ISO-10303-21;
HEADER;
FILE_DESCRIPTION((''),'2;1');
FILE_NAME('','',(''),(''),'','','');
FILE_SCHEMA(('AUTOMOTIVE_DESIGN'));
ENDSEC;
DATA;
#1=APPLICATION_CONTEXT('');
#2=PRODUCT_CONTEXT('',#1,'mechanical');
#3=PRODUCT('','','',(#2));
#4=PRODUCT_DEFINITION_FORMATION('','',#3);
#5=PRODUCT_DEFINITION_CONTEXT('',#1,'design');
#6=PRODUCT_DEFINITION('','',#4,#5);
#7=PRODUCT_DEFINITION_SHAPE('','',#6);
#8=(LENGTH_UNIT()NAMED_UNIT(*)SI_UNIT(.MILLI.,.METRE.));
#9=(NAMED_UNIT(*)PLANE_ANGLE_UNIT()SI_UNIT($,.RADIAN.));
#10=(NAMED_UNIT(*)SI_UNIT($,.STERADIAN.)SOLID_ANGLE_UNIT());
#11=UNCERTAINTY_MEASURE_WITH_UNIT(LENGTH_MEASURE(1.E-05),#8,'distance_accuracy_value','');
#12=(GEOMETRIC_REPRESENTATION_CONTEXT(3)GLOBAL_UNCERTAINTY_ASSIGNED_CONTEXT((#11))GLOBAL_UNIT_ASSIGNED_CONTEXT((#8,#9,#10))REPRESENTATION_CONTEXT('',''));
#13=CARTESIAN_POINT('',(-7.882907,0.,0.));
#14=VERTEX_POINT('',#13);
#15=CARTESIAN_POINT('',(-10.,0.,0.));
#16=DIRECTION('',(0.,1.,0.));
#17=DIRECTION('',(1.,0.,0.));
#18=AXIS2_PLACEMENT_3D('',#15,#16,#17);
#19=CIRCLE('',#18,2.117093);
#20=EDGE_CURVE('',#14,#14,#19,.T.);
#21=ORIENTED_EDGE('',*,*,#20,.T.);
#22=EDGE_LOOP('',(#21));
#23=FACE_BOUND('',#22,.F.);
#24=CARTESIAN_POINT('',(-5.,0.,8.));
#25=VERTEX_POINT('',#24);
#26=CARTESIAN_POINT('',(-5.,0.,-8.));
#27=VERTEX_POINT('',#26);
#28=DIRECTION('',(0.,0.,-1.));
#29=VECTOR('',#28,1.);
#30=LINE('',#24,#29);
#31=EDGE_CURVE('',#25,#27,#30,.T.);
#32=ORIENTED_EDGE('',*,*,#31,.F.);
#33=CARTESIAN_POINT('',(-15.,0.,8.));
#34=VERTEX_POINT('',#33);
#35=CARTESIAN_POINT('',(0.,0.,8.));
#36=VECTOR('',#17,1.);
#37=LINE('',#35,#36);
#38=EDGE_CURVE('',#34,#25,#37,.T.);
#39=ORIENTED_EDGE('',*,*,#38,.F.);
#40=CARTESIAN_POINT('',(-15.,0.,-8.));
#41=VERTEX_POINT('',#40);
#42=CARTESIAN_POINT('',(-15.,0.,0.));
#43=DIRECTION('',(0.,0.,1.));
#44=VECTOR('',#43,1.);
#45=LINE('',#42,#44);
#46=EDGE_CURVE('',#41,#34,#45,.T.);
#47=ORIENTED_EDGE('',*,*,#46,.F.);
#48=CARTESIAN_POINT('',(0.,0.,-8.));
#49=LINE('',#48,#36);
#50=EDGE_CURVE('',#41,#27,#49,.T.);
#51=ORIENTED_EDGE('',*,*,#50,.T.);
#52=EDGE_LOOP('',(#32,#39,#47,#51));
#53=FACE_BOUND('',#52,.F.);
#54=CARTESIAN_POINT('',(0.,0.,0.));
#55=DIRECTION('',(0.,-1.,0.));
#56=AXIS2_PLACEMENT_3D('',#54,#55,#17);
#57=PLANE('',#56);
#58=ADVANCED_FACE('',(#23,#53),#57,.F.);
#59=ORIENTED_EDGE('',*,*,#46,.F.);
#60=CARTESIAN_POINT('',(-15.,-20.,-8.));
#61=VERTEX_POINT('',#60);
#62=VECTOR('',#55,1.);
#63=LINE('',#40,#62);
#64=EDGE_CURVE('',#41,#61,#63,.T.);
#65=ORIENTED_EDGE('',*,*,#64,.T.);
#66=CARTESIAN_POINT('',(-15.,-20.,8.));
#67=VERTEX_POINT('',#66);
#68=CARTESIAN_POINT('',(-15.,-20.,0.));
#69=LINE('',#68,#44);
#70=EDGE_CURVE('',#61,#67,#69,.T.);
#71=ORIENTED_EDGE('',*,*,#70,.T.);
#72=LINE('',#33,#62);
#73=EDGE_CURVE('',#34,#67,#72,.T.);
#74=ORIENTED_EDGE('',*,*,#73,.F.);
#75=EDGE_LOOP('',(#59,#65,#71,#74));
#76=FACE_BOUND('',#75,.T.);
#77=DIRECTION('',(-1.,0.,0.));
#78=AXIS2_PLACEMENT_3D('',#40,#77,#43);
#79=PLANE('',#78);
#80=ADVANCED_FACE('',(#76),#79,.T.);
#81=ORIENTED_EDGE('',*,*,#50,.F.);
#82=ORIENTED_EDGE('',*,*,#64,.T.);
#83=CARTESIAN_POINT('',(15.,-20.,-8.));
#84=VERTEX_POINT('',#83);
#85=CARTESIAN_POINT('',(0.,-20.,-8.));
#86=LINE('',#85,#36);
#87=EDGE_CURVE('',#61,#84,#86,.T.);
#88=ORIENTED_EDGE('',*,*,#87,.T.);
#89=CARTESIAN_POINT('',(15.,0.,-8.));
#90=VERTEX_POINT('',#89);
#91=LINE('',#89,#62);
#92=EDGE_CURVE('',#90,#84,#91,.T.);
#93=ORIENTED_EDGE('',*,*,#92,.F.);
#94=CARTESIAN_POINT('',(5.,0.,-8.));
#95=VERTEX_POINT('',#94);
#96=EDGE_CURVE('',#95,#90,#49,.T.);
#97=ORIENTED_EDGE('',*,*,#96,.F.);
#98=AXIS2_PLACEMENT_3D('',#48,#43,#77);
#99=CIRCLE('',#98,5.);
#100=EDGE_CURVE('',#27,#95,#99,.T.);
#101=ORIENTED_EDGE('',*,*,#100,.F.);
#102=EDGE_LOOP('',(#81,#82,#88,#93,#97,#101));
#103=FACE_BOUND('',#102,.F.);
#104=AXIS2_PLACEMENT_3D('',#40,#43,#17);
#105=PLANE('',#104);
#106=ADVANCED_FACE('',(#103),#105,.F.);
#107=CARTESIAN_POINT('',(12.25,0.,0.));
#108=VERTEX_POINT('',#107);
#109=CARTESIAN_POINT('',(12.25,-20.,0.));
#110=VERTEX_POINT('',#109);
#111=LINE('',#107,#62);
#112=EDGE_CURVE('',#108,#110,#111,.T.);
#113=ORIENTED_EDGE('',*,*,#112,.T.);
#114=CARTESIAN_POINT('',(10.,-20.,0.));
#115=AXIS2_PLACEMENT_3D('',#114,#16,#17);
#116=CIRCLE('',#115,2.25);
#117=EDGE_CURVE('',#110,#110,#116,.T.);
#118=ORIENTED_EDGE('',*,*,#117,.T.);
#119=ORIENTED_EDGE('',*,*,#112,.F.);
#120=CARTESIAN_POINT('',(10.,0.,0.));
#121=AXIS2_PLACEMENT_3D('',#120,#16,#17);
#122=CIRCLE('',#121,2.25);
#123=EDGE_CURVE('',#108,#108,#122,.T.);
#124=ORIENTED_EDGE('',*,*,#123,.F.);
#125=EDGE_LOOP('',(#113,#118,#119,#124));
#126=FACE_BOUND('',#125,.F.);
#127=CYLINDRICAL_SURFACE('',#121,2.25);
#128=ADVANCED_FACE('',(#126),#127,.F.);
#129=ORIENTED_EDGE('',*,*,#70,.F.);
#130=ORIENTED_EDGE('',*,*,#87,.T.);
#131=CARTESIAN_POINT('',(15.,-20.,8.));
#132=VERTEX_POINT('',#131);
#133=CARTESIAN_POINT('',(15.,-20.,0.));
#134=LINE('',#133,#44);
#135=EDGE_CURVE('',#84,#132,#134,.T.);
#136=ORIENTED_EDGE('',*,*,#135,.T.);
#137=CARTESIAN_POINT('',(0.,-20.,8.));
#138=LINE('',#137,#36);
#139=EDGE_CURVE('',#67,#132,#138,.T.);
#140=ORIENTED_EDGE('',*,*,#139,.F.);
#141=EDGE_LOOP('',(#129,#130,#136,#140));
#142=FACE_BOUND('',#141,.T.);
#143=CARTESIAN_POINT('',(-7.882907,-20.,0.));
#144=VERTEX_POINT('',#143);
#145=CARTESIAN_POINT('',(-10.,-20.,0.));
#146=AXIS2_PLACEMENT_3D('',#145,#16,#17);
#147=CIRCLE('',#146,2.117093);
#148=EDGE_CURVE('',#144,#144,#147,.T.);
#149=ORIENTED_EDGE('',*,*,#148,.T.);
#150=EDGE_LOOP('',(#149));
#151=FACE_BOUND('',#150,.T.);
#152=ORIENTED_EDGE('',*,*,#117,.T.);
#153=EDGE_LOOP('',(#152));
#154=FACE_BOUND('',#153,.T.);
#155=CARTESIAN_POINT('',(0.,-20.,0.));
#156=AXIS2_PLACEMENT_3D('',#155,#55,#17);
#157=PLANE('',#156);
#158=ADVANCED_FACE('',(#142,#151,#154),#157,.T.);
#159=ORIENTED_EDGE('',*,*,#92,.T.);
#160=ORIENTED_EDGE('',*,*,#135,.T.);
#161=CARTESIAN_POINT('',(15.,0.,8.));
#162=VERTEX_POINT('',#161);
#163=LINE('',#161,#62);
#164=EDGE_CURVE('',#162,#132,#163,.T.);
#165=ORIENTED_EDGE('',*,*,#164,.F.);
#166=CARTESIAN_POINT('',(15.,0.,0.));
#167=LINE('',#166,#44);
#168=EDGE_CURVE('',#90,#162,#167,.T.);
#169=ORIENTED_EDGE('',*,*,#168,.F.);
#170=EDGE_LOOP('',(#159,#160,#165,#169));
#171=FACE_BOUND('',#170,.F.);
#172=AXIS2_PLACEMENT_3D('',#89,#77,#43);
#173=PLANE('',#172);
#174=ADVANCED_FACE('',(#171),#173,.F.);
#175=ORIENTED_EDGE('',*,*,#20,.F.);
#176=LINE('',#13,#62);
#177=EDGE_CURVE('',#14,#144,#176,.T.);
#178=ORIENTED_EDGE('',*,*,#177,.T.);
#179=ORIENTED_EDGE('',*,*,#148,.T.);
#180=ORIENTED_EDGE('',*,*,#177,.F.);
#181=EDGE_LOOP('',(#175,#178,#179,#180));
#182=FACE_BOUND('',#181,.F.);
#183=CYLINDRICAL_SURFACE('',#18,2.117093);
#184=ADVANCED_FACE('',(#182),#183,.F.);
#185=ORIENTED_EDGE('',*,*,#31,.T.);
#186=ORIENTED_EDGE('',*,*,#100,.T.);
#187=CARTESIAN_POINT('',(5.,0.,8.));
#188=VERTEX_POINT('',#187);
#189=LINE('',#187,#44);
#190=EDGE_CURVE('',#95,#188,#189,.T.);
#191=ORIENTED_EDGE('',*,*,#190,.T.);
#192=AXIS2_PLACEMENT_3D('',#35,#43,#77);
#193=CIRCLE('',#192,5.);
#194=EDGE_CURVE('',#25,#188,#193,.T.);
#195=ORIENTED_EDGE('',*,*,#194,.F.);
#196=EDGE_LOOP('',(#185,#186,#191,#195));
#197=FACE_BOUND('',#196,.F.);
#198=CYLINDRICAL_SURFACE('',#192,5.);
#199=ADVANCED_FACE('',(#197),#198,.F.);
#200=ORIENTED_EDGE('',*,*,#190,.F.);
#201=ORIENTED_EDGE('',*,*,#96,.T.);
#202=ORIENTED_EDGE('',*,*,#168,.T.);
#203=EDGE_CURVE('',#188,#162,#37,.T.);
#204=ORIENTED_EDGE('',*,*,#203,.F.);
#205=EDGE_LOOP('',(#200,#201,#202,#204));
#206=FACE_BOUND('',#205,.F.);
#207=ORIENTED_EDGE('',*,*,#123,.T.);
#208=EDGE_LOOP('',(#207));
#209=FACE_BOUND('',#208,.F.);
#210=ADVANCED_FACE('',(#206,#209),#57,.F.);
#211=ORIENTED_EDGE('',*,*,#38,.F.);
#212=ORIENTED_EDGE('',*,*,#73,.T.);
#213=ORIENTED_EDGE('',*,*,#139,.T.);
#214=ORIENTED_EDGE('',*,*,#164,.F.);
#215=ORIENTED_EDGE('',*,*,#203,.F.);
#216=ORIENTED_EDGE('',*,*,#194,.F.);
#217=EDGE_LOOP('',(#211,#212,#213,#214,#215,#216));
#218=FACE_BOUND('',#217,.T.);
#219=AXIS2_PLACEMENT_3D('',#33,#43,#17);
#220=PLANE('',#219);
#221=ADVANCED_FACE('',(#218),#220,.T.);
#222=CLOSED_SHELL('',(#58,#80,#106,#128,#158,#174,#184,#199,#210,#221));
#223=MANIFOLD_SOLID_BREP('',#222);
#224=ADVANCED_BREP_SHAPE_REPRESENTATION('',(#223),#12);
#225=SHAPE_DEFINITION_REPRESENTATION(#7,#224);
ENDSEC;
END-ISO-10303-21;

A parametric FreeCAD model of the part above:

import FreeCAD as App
import Part
import Sketcher
Q = App.Units.Quantity


def add_polygon(sketch, points):
    """Adds a closed chain of lines whose ends are joined by coincident constraints."""
    first, n = sketch.GeometryCount, len(points)
    for a, b in zip(points, points[1:] + points[:1]):
        sketch.addGeometry(Part.LineSegment(App.Vector(*a, 0), App.Vector(*b, 0)), False)
    for i in range(n):
        sketch.addConstraint(Sketcher.Constraint("Coincident", first + i, 2, first + (i + 1) % n, 1))

doc = App.newDocument("Part")
body = doc.addObject("PartDesign::Body", "Body")

# Sketch on XZ plane
sketch1 = body.newObject("Sketcher::SketchObject", "Sketch")
sketch1.AttachmentSupport = (doc.getObject("XZ_Plane"), [""])
sketch1.MapMode = "FlatFace"
add_polygon(sketch1, [(-15, 8), (-15, -8), (15, -8), (15, 8)])  # lines 0-3
sketch1.addConstraint(Sketcher.Constraint("Vertical", 0))
sketch1.addConstraint(Sketcher.Constraint("Horizontal", 1))
sketch1.addConstraint(Sketcher.Constraint("Vertical", 2))
sketch1.addConstraint(Sketcher.Constraint("Horizontal", 3))
sketch1.addConstraint(Sketcher.Constraint("Symmetric", 0, 2, 2, 2, -1, 1))
sketch1.addConstraint(Sketcher.Constraint("DistanceX", 1, 1, 1, 2, Q("30 mm")))
sketch1.addConstraint(Sketcher.Constraint("DistanceY", 0, 2, 0, 1, Q("16 mm")))
pad1 = body.newObject("PartDesign::Pad", "Pad")
pad1.Profile = sketch1
pad1.Length = 20

# Sketch on XY plane
sketch2 = body.newObject("Sketcher::SketchObject", "Sketch001")
sketch2.AttachmentSupport = (doc.getObject("XY_Plane"), [""])
sketch2.MapMode = "FlatFace"
sketch2.AttachmentOffset = App.Placement(App.Vector(0, 0, 8), App.Rotation())
sketch2.addGeometry(Part.Circle(App.Vector(0, 0, 0), App.Vector(0, 0, 1), 5), False)
sketch2.addConstraint(Sketcher.Constraint("Coincident", 0, 3, -1, 1))
sketch2.addConstraint(Sketcher.Constraint("Diameter", 0, Q("10 mm")))
pocket1 = body.newObject("PartDesign::Pocket", "Pocket")
pocket1.Profile = sketch2
pocket1.Type = "ThroughAll"

# Sketch on XZ plane
sketch3 = body.newObject("Sketcher::SketchObject", "Sketch002")
sketch3.AttachmentSupport = (doc.getObject("XZ_Plane"), [""])
sketch3.MapMode = "FlatFace"
sketch3.addGeometry(Part.Circle(App.Vector(-10, 0, 0), App.Vector(0, 0, 1), 2.1), False)
sketch3.addGeometry(Part.Circle(App.Vector(10, 0, 0), App.Vector(0, 0, 1), 2.2), False)
sketch3.addConstraint(Sketcher.Constraint("Symmetric", 0, 3, 1, 3, -1, 1))
sketch3.addConstraint(Sketcher.Constraint("PointOnObject", 0, 3, -1))
sketch3.addConstraint(Sketcher.Constraint("Diameter", 1, Q("4.5 mm")))
sketch3.addConstraint(Sketcher.Constraint("DistanceX", 0, 3, -1, 1, Q("10 mm")))
sketch3.addConstraint(Sketcher.Constraint("Diameter", 0, Q("4.234186 mm")))
pocket2 = body.newObject("PartDesign::Pocket", "Pocket001")
pocket2.Profile = sketch3
pocket2.Type = "ThroughAll"
pocket2.Reversed = True

doc.recompute()
